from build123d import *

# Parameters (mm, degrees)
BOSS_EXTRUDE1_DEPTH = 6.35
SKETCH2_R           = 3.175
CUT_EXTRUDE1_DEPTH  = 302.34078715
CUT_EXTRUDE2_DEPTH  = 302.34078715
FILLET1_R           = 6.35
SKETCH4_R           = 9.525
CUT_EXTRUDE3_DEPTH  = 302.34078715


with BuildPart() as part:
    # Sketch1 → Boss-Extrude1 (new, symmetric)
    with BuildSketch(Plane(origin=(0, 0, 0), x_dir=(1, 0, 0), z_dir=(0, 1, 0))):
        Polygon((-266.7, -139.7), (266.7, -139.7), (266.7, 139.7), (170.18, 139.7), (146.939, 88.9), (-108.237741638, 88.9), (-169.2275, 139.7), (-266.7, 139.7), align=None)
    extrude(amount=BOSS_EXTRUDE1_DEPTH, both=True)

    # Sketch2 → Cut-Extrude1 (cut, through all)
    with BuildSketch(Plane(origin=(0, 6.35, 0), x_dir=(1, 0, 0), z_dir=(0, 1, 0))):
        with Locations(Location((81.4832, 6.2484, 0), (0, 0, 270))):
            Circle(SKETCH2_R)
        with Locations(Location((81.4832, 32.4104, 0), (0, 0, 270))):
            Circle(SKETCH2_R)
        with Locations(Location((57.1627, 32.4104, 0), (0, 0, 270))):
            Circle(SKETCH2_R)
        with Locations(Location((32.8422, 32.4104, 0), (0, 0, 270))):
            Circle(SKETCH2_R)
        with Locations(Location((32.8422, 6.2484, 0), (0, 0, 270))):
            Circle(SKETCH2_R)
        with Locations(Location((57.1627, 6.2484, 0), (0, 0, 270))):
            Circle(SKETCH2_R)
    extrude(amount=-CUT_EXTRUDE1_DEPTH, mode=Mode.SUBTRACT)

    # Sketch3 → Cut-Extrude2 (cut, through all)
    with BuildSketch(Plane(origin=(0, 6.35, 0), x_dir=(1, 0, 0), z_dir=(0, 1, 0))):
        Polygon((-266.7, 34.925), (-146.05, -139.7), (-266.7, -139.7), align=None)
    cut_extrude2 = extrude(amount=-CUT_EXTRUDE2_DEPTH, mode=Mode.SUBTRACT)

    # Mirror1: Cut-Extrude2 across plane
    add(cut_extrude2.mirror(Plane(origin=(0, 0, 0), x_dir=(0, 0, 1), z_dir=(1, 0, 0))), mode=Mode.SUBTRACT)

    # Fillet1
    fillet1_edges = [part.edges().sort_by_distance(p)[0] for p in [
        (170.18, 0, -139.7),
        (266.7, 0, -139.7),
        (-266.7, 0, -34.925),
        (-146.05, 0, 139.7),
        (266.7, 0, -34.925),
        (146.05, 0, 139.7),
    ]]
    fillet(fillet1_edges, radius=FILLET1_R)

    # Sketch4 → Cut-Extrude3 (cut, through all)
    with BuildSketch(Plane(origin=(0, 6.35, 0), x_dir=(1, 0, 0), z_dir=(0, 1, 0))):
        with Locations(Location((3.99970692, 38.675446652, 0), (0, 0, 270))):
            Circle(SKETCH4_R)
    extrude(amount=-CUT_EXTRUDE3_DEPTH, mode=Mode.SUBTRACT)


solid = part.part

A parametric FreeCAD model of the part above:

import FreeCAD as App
import Part
import Sketcher
from FreeCAD import Vector
Q = App.Units.Quantity


def edges_at(feature, points):
    """Names of the edges that pass closest to the given points."""
    edges = feature.Shape.Edges
    near = lambda p: min(range(len(edges)), key=lambda i: edges[i].distToShape(Part.Vertex(*p))[0])
    return sorted({f"Edge{near(p) + 1}" for p in points})

doc = App.newDocument("Part")
params = doc.addObject("Spreadsheet::Sheet", "Params")
for row, (alias, value) in enumerate([
    ("sketch1_width", "21 in"),
    ("sketch1_height", "11 in"),
    ("sketch1_width2", "3.8 in"),
    ("sketch1_length", "3.125 in"),
    ("pad1_length", "0.5 in"),
    ("sketch2_diameter", "0.25 in"),
    ("sketch3_width", "4.75 in"),
    ("sketch3_height", "6.875 in"),
    ("fillet_radius", "0.25 in"),
    ("sketch4_diameter", "0.75 in"),
], start=1):
    params.set(f"A{row}", alias)
    params.set(f"B{row}", "=" + value)
    params.setAlias(f"B{row}", alias)

body = doc.addObject("PartDesign::Body", "Body")

sketch1 = body.newObject("Sketcher::SketchObject", "Sketch")
sketch1.AttachmentSupport = (doc.getObject("XZ_Plane"), [""])
sketch1.MapMode = "FlatFace"
sketch1.addGeometry([
    Part.LineSegment(Vector(-267, 140, 0), Vector(267, 140, 0)),
    Part.LineSegment(Vector(267, 140, 0), Vector(267, -140, 0)),
    Part.LineSegment(Vector(267, -140, 0), Vector(170, -140, 0)),
    Part.LineSegment(Vector(170, -140, 0), Vector(147, -89, 0)),
    Part.LineSegment(Vector(147, -89, 0), Vector(-108, -89, 0)),
    Part.LineSegment(Vector(-108, -89, 0), Vector(-169, -140, 0)),
    Part.LineSegment(Vector(-169, -140, 0), Vector(-267, -140, 0)),
    Part.LineSegment(Vector(-267, -140, 0), Vector(-267, 140, 0)),
], False)
sketch1.addConstraint([
    Sketcher.Constraint("Coincident", 0, 2, 1, 1),
    Sketcher.Constraint("Coincident", 1, 2, 2, 1),
    Sketcher.Constraint("Coincident", 2, 2, 3, 1),
    Sketcher.Constraint("Coincident", 3, 2, 4, 1),
    Sketcher.Constraint("Coincident", 4, 2, 5, 1),
    Sketcher.Constraint("Coincident", 5, 2, 6, 1),
    Sketcher.Constraint("Coincident", 6, 2, 7, 1),
    Sketcher.Constraint("Coincident", 7, 2, 0, 1),
    Sketcher.Constraint("Horizontal", 0),
    Sketcher.Constraint("Vertical", 1),
    Sketcher.Constraint("Horizontal", 2),
    Sketcher.Constraint("Horizontal", 4),
    Sketcher.Constraint("Horizontal", 6),
    Sketcher.Constraint("Vertical", 7),
    Sketcher.Constraint("Symmetric", 0, 2, 6, 2, -1, 1),
    Sketcher.Constraint("Horizontal", 2, 2, 5, 2),
    Sketcher.Constraint("DistanceX", 0, 1, 0, 2, Q("21 in")),
    Sketcher.Constraint("DistanceY", 1, 2, 1, 1, Q("11 in")),
    Sketcher.Constraint("DistanceX", 2, 2, 2, 1, Q("3.8 in")),
    Sketcher.Constraint("DistanceY", 2, 2, 3, 2, Q("2 in")),
    Sketcher.Constraint("Distance", 5, Q("3.125 in")),
    Sketcher.Constraint("DistanceX", 6, 2, 6, 1, Q("3.8375 in")),
    Sketcher.Constraint("DistanceX", -1, 1, 3, 2, Q("5.785 in")),
])
sketch1.setExpression("Constraints[16]", "Params.sketch1_width")
sketch1.setExpression("Constraints[17]", "Params.sketch1_height")
sketch1.setExpression("Constraints[18]", "Params.sketch1_width2")
sketch1.setExpression("Constraints[20]", "Params.sketch1_length")
pad1 = body.newObject("PartDesign::Pad", "Pad")
pad1.Profile = sketch1
pad1.setExpression("Length", "Params.pad1_length")
pad1.Midplane = True

sketch2 = body.newObject("Sketcher::SketchObject", "Sketch001")
sketch2.AttachmentSupport = (doc.getObject("XZ_Plane"), [""])
sketch2.MapMode = "FlatFace"
sketch2.AttachmentOffset = App.Placement(Vector(0, 0, -0.25 * 25.4), App.Rotation())
sketch2.addGeometry([
    Part.Circle(Vector(81.5, -6.2, 0), Vector(0, 0, 1), 3.2),
    Part.Circle(Vector(81.5, -32.4, 0), Vector(0, 0, 1), 3.2),
    Part.Circle(Vector(57.2, -32.4, 0), Vector(0, 0, 1), 3.2),
    Part.Circle(Vector(32.8, -32.4, 0), Vector(0, 0, 1), 3.2),
    Part.Circle(Vector(32.8, -6.2, 0), Vector(0, 0, 1), 3.2),
    Part.Circle(Vector(57.2, -6.2, 0), Vector(0, 0, 1), 3.2),
], False)
sketch2.addConstraint([
    Sketcher.Constraint("Equal", 0, 1),
    Sketcher.Constraint("Equal", 1, 2),
    Sketcher.Constraint("Equal", 2, 3),
    Sketcher.Constraint("Equal", 3, 4),
    Sketcher.Constraint("Equal", 4, 5),
    Sketcher.Constraint("Horizontal", 1, 3, 2, 3),
    Sketcher.Constraint("Horizontal", 2, 3, 3, 3),
    Sketcher.Constraint("Horizontal", 0, 3, 4, 3),
    Sketcher.Constraint("Horizontal", 4, 3, 5, 3),
    Sketcher.Constraint("Vertical", 0, 3, 1, 3),
    Sketcher.Constraint("Vertical", 3, 3, 4, 3),
    Sketcher.Constraint("Vertical", 2, 3, 5, 3),
    Sketcher.Constraint("Diameter", 0, Q("0.25 in")),
    Sketcher.Constraint("DistanceY", 1, 3, 0, 3, Q("1.03 in")),
    Sketcher.Constraint("DistanceX", -1, 1, 0, 3, Q("3.208 in")),
    Sketcher.Constraint("DistanceY", 0, 3, -1, 1, Q("0.246 in")),
    Sketcher.Constraint("DistanceX", -1, 1, 3, 3, Q("1.293 in")),
    Sketcher.Constraint("DistanceX", -1, 1, 2, 3, Q("2.2505 in")),
])
sketch2.setExpression("Constraints[12]", "Params.sketch2_diameter")
pocket1 = body.newObject("PartDesign::Pocket", "Pocket")
pocket1.Profile = sketch2
pocket1.Type = "ThroughAll"
pocket1.Reversed = True

sketch3 = body.newObject("Sketcher::SketchObject", "Sketch002")
sketch3.AttachmentSupport = (doc.getObject("XZ_Plane"), [""])
sketch3.MapMode = "FlatFace"
sketch3.AttachmentOffset = App.Placement(Vector(0, 0, -0.25 * 25.4), App.Rotation())
sketch3.addGeometry([
    Part.LineSegment(Vector(-146, 140, 0), Vector(-267, -35, 0)),
    Part.LineSegment(Vector(-267, -35, 0), Vector(-267, 140, 0)),
    Part.LineSegment(Vector(-267, 140, 0), Vector(-146, 140, 0)),
], False)
sketch3.addConstraint([
    Sketcher.Constraint("Coincident", 0, 2, 1, 1),
    Sketcher.Constraint("Coincident", 1, 2, 2, 1),
    Sketcher.Constraint("Coincident", 2, 2, 0, 1),
    Sketcher.Constraint("Vertical", 1),
    Sketcher.Constraint("Horizontal", 2),
    Sketcher.Constraint("DistanceX", 2, 1, 2, 2, Q("4.75 in")),
    Sketcher.Constraint("DistanceX", 0, 2, -1, 1, Q("10.5 in")),
    Sketcher.Constraint("DistanceY", -1, 1, 1, 2, Q("5.5 in")),
    Sketcher.Constraint("DistanceY", 1, 1, 1, 2, Q("6.875 in")),
])
sketch3.setExpression("Constraints[5]", "Params.sketch3_width")
sketch3.setExpression("Constraints[8]", "Params.sketch3_height")
pocket2 = body.newObject("PartDesign::Pocket", "Pocket001")
pocket2.Profile = sketch3
pocket2.Type = "ThroughAll"
pocket2.Reversed = True
doc.recompute()

mirrored = body.newObject("PartDesign::Mirrored", "Mirrored")
mirrored.Originals = [pocket2]
mirrored.MirrorPlane = (doc.getObject("YZ_Plane"), [""])
body.Tip = mirrored
doc.recompute()

fillet = body.newObject("PartDesign::Fillet", "Fillet")
fillet.Base = (mirrored, edges_at(mirrored, [
    (170.18, 0, -139.7),
    (266.7, 0, -139.7),
    (-266.7, 0, -34.925),
    (-146.05, 0, 139.7),
    (266.7, 0, -34.925),
    (146.05, 0, 139.7),
]))
fillet.setExpression("Radius", "Params.fillet_radius")

sketch4 = body.newObject("Sketcher::SketchObject", "Sketch003")
sketch4.AttachmentSupport = (doc.getObject("XZ_Plane"), [""])
sketch4.MapMode = "FlatFace"
sketch4.AttachmentOffset = App.Placement(Vector(0, 0, -0.25 * 25.4), App.Rotation())
sketch4.addGeometry(Part.Circle(Vector(4, -39, 0), Vector(0, 0, 1), 10), False)
sketch4.addConstraint([
    Sketcher.Constraint("Diameter", 0, Q("0.75 in")),
    Sketcher.Constraint("DistanceX", -1, 1, 0, 3, Q("3.999707 mm")),
    Sketcher.Constraint("DistanceY", 0, 3, -1, 1, Q("38.675447 mm")),
])
sketch4.setExpression("Constraints[0]", "Params.sketch4_diameter")
pocket3 = body.newObject("PartDesign::Pocket", "Pocket002")
pocket3.Profile = sketch4
pocket3.Type = "ThroughAll"
pocket3.Reversed = True

doc.recompute()
